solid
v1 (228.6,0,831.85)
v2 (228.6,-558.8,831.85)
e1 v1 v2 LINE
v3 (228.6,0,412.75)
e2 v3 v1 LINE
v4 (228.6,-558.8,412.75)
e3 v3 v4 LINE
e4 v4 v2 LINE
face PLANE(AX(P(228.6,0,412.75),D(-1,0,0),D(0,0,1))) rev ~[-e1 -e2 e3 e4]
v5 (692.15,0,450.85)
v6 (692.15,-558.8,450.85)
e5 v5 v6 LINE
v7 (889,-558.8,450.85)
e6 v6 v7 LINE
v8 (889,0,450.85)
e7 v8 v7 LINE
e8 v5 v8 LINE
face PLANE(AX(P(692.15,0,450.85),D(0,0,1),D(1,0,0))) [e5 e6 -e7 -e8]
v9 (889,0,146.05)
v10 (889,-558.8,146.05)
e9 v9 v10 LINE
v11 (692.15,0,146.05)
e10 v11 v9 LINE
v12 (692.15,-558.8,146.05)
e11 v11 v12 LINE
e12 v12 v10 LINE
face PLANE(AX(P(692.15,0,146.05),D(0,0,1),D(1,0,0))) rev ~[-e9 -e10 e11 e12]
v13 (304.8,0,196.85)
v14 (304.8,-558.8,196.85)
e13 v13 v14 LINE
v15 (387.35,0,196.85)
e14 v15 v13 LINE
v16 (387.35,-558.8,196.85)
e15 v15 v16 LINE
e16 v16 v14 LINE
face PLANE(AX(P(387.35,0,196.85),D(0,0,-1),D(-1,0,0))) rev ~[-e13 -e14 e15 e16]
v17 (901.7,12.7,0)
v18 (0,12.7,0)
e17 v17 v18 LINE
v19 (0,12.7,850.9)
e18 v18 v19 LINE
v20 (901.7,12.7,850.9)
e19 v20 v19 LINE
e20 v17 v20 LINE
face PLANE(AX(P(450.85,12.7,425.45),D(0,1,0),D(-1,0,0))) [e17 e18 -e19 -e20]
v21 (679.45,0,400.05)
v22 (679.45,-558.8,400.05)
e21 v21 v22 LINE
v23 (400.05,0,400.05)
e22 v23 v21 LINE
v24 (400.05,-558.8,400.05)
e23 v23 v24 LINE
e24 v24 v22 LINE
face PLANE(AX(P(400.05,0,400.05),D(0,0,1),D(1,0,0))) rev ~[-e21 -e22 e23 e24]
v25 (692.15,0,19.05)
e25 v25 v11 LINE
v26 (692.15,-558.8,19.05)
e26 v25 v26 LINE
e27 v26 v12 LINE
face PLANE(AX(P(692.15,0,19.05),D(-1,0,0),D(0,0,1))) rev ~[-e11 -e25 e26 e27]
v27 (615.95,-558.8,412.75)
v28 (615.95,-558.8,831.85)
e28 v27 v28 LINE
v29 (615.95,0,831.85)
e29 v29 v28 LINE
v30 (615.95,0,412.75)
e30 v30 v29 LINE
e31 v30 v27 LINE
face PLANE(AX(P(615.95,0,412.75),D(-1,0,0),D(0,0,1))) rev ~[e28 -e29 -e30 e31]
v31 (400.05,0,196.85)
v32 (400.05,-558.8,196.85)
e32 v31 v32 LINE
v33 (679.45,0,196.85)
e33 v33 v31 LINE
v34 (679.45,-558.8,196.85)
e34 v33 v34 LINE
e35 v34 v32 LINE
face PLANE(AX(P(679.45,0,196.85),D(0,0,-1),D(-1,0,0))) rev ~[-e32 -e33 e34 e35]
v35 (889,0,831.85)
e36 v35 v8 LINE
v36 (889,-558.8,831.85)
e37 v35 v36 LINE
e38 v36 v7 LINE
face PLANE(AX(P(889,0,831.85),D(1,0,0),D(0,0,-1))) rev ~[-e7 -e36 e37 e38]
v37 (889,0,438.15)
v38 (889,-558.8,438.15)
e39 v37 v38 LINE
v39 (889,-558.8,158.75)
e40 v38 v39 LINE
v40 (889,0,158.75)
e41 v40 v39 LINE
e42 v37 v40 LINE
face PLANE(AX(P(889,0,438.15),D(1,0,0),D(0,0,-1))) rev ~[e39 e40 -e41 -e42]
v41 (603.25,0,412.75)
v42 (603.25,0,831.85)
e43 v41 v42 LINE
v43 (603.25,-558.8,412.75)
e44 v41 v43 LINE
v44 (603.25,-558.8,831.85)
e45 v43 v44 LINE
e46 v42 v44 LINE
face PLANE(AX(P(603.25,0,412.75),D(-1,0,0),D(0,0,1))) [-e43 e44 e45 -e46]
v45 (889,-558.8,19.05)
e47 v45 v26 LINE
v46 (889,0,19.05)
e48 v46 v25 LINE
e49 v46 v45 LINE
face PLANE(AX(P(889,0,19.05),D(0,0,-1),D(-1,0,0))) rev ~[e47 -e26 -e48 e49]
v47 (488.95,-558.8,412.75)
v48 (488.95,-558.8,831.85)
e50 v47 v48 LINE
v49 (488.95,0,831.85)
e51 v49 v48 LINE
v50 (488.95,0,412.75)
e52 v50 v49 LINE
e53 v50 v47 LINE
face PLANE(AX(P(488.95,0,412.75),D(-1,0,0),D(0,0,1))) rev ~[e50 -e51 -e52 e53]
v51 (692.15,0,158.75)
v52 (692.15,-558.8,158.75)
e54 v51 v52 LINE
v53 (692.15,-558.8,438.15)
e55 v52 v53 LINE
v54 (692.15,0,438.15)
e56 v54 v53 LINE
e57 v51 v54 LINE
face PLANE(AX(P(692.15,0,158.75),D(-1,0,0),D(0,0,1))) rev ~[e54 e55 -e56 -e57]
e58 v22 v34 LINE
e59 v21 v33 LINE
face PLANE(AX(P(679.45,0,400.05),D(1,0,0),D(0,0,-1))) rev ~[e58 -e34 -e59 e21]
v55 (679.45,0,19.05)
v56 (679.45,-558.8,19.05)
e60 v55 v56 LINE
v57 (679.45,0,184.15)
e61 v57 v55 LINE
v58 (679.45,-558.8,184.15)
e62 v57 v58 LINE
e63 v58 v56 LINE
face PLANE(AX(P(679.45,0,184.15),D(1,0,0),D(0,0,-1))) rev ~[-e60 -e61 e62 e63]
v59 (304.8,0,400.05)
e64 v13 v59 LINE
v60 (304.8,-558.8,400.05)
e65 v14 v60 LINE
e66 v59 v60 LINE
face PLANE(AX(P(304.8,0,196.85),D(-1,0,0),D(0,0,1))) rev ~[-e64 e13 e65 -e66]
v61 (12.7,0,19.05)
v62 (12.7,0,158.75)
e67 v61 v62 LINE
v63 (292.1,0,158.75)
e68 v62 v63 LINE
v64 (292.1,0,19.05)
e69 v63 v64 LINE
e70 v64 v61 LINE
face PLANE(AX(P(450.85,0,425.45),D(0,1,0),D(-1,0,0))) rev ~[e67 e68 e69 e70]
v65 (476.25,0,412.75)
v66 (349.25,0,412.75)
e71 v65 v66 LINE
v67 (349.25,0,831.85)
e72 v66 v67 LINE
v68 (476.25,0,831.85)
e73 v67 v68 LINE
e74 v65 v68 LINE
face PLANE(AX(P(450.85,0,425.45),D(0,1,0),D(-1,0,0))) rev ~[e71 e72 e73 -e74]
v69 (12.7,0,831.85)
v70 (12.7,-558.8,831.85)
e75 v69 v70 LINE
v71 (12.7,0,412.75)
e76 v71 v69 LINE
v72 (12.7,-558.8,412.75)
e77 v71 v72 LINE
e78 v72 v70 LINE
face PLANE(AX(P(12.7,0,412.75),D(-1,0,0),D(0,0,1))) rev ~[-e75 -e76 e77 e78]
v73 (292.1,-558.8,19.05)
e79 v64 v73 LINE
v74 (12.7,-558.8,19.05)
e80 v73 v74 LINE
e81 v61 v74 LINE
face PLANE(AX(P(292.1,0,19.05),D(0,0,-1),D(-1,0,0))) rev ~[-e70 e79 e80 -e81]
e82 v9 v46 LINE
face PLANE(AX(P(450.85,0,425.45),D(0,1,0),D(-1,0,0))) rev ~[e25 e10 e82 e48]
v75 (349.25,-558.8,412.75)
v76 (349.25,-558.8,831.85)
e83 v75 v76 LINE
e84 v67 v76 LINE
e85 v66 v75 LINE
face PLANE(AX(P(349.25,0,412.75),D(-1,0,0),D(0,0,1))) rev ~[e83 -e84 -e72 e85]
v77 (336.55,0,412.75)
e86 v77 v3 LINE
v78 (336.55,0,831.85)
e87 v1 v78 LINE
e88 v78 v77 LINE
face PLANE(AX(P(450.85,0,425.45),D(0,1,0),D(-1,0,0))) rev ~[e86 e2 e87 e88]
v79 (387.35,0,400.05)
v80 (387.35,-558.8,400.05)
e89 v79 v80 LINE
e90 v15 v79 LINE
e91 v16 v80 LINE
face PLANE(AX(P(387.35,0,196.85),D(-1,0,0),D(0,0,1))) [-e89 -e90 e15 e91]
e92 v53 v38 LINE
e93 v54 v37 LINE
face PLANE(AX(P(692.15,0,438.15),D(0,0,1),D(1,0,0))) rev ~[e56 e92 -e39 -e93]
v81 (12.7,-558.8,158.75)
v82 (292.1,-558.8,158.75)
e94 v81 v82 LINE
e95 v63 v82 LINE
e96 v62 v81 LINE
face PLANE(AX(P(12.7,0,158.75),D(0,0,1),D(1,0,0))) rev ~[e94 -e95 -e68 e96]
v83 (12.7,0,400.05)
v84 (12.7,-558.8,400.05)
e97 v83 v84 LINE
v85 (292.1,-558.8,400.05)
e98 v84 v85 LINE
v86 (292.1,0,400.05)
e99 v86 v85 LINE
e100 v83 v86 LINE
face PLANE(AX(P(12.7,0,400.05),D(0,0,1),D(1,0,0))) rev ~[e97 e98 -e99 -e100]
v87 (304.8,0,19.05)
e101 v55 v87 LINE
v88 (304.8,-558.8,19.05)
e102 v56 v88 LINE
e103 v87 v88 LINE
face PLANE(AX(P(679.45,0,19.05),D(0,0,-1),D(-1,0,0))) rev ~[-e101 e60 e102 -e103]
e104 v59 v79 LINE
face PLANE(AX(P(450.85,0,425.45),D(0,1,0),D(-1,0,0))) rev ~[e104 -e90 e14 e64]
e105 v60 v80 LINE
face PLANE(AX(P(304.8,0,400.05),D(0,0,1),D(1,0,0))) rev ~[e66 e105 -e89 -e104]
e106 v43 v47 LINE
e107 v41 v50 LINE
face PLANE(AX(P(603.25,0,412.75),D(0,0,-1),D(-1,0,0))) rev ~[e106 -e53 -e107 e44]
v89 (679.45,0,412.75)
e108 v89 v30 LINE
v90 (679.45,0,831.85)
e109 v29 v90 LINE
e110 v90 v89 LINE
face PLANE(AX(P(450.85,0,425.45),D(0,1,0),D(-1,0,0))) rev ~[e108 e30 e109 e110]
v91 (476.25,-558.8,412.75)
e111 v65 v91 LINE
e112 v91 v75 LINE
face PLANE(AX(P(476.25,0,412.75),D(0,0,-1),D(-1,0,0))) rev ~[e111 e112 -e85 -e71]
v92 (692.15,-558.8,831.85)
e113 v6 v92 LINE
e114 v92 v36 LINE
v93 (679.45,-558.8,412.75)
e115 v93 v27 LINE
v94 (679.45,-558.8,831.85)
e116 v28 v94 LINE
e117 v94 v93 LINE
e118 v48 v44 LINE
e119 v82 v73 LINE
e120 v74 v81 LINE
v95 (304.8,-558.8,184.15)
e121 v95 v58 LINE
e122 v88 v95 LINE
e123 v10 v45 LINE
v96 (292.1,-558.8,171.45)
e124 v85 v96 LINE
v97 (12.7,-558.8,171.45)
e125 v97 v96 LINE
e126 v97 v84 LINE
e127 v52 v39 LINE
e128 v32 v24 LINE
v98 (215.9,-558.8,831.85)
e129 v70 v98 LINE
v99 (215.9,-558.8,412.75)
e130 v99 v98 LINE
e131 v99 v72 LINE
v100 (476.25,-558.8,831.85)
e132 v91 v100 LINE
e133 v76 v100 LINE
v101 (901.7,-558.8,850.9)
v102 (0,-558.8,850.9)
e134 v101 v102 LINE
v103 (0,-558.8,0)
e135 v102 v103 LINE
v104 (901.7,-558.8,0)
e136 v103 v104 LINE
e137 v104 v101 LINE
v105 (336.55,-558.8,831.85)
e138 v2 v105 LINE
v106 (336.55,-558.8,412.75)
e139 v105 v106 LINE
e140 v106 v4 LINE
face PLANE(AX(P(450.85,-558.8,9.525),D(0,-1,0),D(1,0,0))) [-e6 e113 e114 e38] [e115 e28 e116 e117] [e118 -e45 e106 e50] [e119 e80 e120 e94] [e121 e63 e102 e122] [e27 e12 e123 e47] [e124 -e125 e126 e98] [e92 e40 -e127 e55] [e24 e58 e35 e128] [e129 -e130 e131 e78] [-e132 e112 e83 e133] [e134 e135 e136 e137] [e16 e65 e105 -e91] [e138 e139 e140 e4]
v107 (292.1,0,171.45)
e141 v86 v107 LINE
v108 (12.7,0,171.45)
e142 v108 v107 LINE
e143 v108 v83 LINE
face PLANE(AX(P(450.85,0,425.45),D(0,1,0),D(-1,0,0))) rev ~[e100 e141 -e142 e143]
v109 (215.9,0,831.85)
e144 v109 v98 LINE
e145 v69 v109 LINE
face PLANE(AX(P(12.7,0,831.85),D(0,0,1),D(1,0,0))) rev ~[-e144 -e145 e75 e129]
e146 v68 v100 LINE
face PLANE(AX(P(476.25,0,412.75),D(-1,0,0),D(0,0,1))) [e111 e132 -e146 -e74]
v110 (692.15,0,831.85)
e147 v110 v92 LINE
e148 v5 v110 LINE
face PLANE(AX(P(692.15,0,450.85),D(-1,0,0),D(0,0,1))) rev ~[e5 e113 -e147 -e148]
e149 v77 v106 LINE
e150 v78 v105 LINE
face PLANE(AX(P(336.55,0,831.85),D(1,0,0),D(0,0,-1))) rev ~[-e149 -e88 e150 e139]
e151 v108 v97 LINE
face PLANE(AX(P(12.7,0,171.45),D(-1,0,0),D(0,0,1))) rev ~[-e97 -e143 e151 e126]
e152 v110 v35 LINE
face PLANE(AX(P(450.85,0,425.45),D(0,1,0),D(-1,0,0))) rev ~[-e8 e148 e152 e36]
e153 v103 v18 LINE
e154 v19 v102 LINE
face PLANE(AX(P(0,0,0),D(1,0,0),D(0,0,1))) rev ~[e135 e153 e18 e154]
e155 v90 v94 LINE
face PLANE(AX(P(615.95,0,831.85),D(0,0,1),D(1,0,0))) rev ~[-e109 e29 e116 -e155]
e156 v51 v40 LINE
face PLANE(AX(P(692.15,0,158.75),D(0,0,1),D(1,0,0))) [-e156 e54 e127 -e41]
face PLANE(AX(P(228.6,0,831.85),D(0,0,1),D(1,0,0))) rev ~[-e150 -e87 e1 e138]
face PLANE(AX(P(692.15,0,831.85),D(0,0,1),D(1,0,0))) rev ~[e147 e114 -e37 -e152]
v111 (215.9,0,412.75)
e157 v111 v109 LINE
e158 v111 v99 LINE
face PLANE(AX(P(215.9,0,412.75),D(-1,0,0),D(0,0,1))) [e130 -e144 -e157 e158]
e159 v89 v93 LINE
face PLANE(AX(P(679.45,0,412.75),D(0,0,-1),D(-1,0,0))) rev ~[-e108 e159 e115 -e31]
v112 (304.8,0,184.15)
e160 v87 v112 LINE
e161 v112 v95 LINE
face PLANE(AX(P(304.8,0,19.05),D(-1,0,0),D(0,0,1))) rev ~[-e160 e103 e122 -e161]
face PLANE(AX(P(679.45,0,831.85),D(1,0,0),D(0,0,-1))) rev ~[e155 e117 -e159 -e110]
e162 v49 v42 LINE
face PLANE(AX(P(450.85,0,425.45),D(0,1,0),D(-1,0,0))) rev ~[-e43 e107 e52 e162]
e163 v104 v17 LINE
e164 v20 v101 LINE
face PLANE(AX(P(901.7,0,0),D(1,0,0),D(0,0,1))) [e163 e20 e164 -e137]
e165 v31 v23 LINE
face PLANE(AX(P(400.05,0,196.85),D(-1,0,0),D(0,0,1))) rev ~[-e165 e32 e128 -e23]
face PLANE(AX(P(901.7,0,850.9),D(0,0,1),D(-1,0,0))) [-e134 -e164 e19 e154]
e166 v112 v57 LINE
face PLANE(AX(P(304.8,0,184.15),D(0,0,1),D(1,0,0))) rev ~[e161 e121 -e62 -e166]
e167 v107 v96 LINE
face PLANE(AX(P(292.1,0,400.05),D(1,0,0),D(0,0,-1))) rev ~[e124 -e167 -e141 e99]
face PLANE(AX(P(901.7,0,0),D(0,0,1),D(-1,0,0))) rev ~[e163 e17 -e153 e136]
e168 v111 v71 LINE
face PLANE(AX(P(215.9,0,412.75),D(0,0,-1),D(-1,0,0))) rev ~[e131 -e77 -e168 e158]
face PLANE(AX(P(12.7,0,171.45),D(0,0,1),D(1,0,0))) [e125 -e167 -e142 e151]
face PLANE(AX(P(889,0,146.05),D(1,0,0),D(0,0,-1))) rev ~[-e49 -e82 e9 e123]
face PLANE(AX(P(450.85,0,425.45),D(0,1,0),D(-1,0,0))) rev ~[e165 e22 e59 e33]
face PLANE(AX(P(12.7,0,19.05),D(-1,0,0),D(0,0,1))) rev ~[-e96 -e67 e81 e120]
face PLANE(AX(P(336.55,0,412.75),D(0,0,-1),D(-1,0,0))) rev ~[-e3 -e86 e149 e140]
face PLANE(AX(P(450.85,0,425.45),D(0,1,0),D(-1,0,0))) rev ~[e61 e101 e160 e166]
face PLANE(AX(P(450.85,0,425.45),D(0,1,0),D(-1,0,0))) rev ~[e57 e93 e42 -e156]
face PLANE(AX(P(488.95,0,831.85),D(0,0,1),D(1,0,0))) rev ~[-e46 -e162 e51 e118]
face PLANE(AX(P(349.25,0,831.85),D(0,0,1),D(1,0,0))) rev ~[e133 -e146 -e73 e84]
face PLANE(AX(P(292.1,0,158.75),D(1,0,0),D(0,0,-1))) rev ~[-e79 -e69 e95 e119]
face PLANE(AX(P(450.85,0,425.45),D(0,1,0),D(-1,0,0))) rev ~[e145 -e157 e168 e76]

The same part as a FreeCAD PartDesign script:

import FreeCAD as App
import Part
import Sketcher
Q = App.Units.Quantity


def add_polygon(sketch, points):
    """Adds a closed chain of lines whose ends are joined by coincident constraints."""
    first, n = sketch.GeometryCount, len(points)
    for a, b in zip(points, points[1:] + points[:1]):
        sketch.addGeometry(Part.LineSegment(App.Vector(*a, 0), App.Vector(*b, 0)), False)
    for i in range(n):
        sketch.addConstraint(Sketcher.Constraint("Coincident", first + i, 2, first + (i + 1) % n, 1))

doc = App.newDocument("Part")
body = doc.addObject("PartDesign::Body", "Body")

# Sketch on XZ plane
sketch1 = doc.addObject("Sketcher::SketchObject", "Sketch")
body.addObject(sketch1)
sketch1.AttachmentSupport = (doc.XZ_Plane, [""])
sketch1.MapMode = "FlatFace"
add_polygon(sketch1, [(0, 0), (902, 0), (902, 851), (0, 851)])  # lines 0-3
add_polygon(sketch1, [(889, 832), (889, 451), (692, 451), (692, 832)])  # lines 4-7
add_polygon(sketch1, [(889, 438), (889, 159), (692, 159), (692, 438)])  # lines 8-11
add_polygon(sketch1, [(889, 146), (889, 19), (692, 19), (692, 146)])  # lines 12-15
add_polygon(sketch1, [(679, 19), (305, 19), (305, 184), (679, 184)])  # lines 16-19
add_polygon(sketch1, [(292, 19), (13, 19), (13, 159), (292, 159)])  # lines 20-23
add_polygon(sketch1, [(13, 171), (13, 400), (292, 400), (292, 171)])  # lines 24-27
add_polygon(sketch1, [(305, 400), (387, 400), (387, 197), (305, 197)])  # lines 28-31
add_polygon(sketch1, [(13, 413), (13, 832), (216, 832), (216, 413)])  # lines 32-35
add_polygon(sketch1, [(229, 413), (229, 832), (337, 832), (337, 413)])  # lines 36-39
add_polygon(sketch1, [(400, 400), (679, 400), (679, 197), (400, 197)])  # lines 40-43
add_polygon(sketch1, [(349, 413), (349, 832), (476, 832), (476, 413)])  # lines 44-47
add_polygon(sketch1, [(489, 413), (489, 832), (603, 832), (603, 413)])  # lines 48-51
add_polygon(sketch1, [(616, 413), (616, 832), (679, 832), (679, 413)])  # lines 52-55
sketch1.addConstraint([
    Sketcher.Constraint("Horizontal", 0),
    Sketcher.Constraint("Vertical", 1),
    Sketcher.Constraint("Horizontal", 2),
    Sketcher.Constraint("Vertical", 3),
    Sketcher.Constraint("Vertical", 4),
    Sketcher.Constraint("Horizontal", 5),
    Sketcher.Constraint("Vertical", 6),
    Sketcher.Constraint("Horizontal", 7),
    Sketcher.Constraint("Vertical", 8),
    Sketcher.Constraint("Horizontal", 9),
    Sketcher.Constraint("Vertical", 10),
    Sketcher.Constraint("Horizontal", 11),
    Sketcher.Constraint("Vertical", 12),
    Sketcher.Constraint("Horizontal", 13),
    Sketcher.Constraint("Vertical", 14),
    Sketcher.Constraint("Horizontal", 15),
    Sketcher.Constraint("Horizontal", 16),
    Sketcher.Constraint("Vertical", 17),
    Sketcher.Constraint("Horizontal", 18),
    Sketcher.Constraint("Vertical", 19),
    Sketcher.Constraint("Horizontal", 20),
    Sketcher.Constraint("Vertical", 21),
    Sketcher.Constraint("Horizontal", 22),
    Sketcher.Constraint("Vertical", 23),
    Sketcher.Constraint("Vertical", 24),
    Sketcher.Constraint("Horizontal", 25),
    Sketcher.Constraint("Vertical", 26),
    Sketcher.Constraint("Horizontal", 27),
    Sketcher.Constraint("Horizontal", 28),
    Sketcher.Constraint("Vertical", 29),
    Sketcher.Constraint("Horizontal", 30),
    Sketcher.Constraint("Vertical", 31),
    Sketcher.Constraint("Vertical", 32),
    Sketcher.Constraint("Horizontal", 33),
    Sketcher.Constraint("Vertical", 34),
    Sketcher.Constraint("Horizontal", 35),
    Sketcher.Constraint("Vertical", 36),
    Sketcher.Constraint("Horizontal", 37),
    Sketcher.Constraint("Vertical", 38),
    Sketcher.Constraint("Horizontal", 39),
    Sketcher.Constraint("Horizontal", 40),
    Sketcher.Constraint("Vertical", 41),
    Sketcher.Constraint("Horizontal", 42),
    Sketcher.Constraint("Vertical", 43),
    Sketcher.Constraint("Vertical", 44),
    Sketcher.Constraint("Horizontal", 45),
    Sketcher.Constraint("Vertical", 46),
    Sketcher.Constraint("Horizontal", 47),
    Sketcher.Constraint("Vertical", 48),
    Sketcher.Constraint("Horizontal", 49),
    Sketcher.Constraint("Vertical", 50),
    Sketcher.Constraint("Horizontal", 51),
    Sketcher.Constraint("Vertical", 52),
    Sketcher.Constraint("Horizontal", 53),
    Sketcher.Constraint("Vertical", 54),
    Sketcher.Constraint("Horizontal", 55),
    Sketcher.Constraint("Coincident", 3, 2, -1, 1),
    Sketcher.Constraint("Horizontal", 13, 2, 16, 2),
    Sketcher.Constraint("Horizontal", 19, 2, 20, 2),
    Sketcher.Constraint("Horizontal", 9, 2, 21, 2),
    Sketcher.Constraint("Horizontal", 25, 2, 28, 2),
    Sketcher.Constraint("Horizontal", 7, 2, 32, 2),
    Sketcher.Constraint("Horizontal", 33, 2, 36, 2),
    Sketcher.Constraint("Horizontal", 35, 2, 38, 2),
    Sketcher.Constraint("Horizontal", 31, 2, 40, 2),
    Sketcher.Constraint("Horizontal", 30, 2, 41, 2),
    Sketcher.Constraint("Horizontal", 37, 2, 44, 2),
    Sketcher.Constraint("Horizontal", 39, 2, 46, 2),
    Sketcher.Constraint("Horizontal", 45, 2, 48, 2),
    Sketcher.Constraint("Horizontal", 47, 2, 50, 2),
    Sketcher.Constraint("Horizontal", 49, 2, 52, 2),
    Sketcher.Constraint("Horizontal", 51, 2, 54, 2),
    Sketcher.Constraint("Vertical", 7, 2, 8, 2),
    Sketcher.Constraint("Vertical", 6, 2, 9, 2),
    Sketcher.Constraint("Vertical", 11, 2, 12, 2),
    Sketcher.Constraint("Vertical", 10, 2, 13, 2),
    Sketcher.Constraint("Vertical", 21, 2, 24, 2),
    Sketcher.Constraint("Vertical", 23, 2, 25, 2),
    Sketcher.Constraint("Vertical", 17, 2, 30, 2),
    Sketcher.Constraint("Vertical", 27, 2, 32, 2),
    Sketcher.Constraint("Vertical", 19, 2, 40, 2),
    Sketcher.Constraint("Vertical", 41, 2, 53, 2),
    Sketcher.Constraint("Equal", 27, 40),
    Sketcher.Constraint("Equal", 42, 8),
    Sketcher.Constraint("Equal", 47, 12),
    Sketcher.Constraint("Equal", 35, 29),
    Sketcher.Constraint("DistanceX", 20, 2, 20, 1, Q("11 in")),
    Sketcher.Constraint("DistanceX", 33, 1, 33, 2, Q("8 in")),
    Sketcher.Constraint("DistanceX", 45, 1, 45, 2, Q("5 in")),
    Sketcher.Constraint("DistanceY", 4, 2, 4, 1, Q("15 in")),
    Sketcher.Constraint("DistanceY", 24, 1, 24, 2, Q("9 in")),
    Sketcher.Constraint("DistanceX", 0, 1, 0, 2, Q("35.5 in")),
    Sketcher.Constraint("DistanceX", 49, 1, 49, 2, Q("4.5 in")),
    Sketcher.Constraint("DistanceX", 53, 1, 53, 2, Q("2.5 in")),
    Sketcher.Constraint("DistanceY", 1, 1, 1, 2, Q("33.5 in")),
    Sketcher.Constraint("DistanceY", 17, 1, 17, 2, Q("6.5 in")),
    Sketcher.Constraint("DistanceY", 21, 1, 21, 2, Q("5.5 in")),
    Sketcher.Constraint("DistanceY", 32, 1, 32, 2, Q("16.5 in")),
    Sketcher.Constraint("DistanceX", -1, 1, 4, 2, Q("35 in")),
    Sketcher.Constraint("DistanceX", -1, 1, 16, 2, Q("12 in")),
    Sketcher.Constraint("DistanceX", -1, 1, 36, 2, Q("9 in")),
    Sketcher.Constraint("DistanceY", 12, 2, 4, 2, Q("17 in")),
    Sketcher.Constraint("DistanceY", 20, 2, 24, 2, Q("15 in")),
    Sketcher.Constraint("DistanceX", 28, 2, 10, 2, Q("12 in")),
    Sketcher.Constraint("DistanceX", 37, 2, 6, 2, Q("14 in")),
    Sketcher.Constraint("DistanceX", 43, 2, 46, 2, Q("3 in")),
    Sketcher.Constraint("DistanceX", 37, 2, 48, 2, Q("6 in")),
    Sketcher.Constraint("DistanceX", 45, 2, 49, 2, Q("5 in")),
    Sketcher.Constraint("DistanceX", 5, 2, 5, 1, Q("7.75 in")),
    Sketcher.Constraint("DistanceX", -1, 1, 20, 2, Q("0.5 in")),
    Sketcher.Constraint("DistanceY", -1, 1, 4, 2, Q("17.75 in")),
])
pad1 = doc.addObject("PartDesign::Pad", "Pad")
body.addObject(pad1)
pad1.Profile = sketch1
pad1.Length = Q("22 in")

# Sketch on XZ plane
sketch2 = doc.addObject("Sketcher::SketchObject", "Sketch001")
body.addObject(sketch2)
sketch2.AttachmentSupport = (doc.XZ_Plane, [""])
sketch2.MapMode = "FlatFace"
add_polygon(sketch2, [(902, 851), (902, 0), (0, 0), (0, 851)])  # lines 0-3
sketch2.addConstraint([
    Sketcher.Constraint("Vertical", 0),
    Sketcher.Constraint("Horizontal", 1),
    Sketcher.Constraint("Vertical", 2),
    Sketcher.Constraint("Horizontal", 3),
    Sketcher.Constraint("Coincident", 1, 2, -1, 1),
    Sketcher.Constraint("DistanceX", 1, 2, 1, 1, Q("35.5 in")),
    Sketcher.Constraint("DistanceY", 0, 2, 0, 1, Q("33.5 in")),
])
pad2 = doc.addObject("PartDesign::Pad", "Pad001")
body.addObject(pad2)
pad2.Profile = sketch2
pad2.Length = Q("0.5 in")
pad2.Reversed = True

doc.recompute()
